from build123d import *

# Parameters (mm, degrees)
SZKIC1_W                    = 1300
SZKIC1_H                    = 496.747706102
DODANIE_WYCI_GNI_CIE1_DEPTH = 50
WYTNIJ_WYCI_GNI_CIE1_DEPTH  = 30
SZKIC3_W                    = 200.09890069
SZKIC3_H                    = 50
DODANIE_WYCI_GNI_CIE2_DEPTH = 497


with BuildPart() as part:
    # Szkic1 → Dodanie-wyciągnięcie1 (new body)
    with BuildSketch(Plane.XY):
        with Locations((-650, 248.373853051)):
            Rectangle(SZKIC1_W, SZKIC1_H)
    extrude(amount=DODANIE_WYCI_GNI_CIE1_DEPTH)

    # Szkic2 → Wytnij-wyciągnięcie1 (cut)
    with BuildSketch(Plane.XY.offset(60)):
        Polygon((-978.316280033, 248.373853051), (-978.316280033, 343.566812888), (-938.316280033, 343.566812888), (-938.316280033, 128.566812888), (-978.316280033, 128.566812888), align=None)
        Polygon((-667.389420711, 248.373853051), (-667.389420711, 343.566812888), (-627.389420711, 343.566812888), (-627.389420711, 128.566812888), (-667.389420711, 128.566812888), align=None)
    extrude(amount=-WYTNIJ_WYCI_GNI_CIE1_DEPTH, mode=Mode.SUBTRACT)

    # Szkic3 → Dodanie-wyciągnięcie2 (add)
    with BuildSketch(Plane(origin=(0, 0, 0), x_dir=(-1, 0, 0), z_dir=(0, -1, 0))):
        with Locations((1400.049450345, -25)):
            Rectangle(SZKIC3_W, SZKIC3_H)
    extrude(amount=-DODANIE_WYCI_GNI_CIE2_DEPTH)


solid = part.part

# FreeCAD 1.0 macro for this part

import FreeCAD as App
import Part
import Sketcher
from FreeCAD import Vector


def add_polygon(sketch, points):
    """Adds a closed chain of lines whose ends are joined by coincident constraints."""
    first, n = sketch.GeometryCount, len(points)
    for a, b in zip(points, points[1:] + points[:1]):
        sketch.addGeometry(Part.LineSegment(App.Vector(*a, 0), App.Vector(*b, 0)), False)
    for i in range(n):
        sketch.addConstraint(Sketcher.Constraint("Coincident", first + i, 2, first + (i + 1) % n, 1))

doc = App.newDocument("Part")
body = doc.addObject("PartDesign::Body", "Body")

# Sketch on XY plane
sketch1 = body.newObject("Sketcher::SketchObject", "Sketch")
sketch1.AttachmentSupport = (doc.getObject("XY_Plane"), [""])
sketch1.MapMode = "FlatFace"
add_polygon(sketch1, [(-1300, 497), (-1300, 0), (0, 0), (0, 497)])  # lines 0-3
sketch1.addConstraint(Sketcher.Constraint("Vertical", 0))
sketch1.addConstraint(Sketcher.Constraint("Horizontal", 1))
sketch1.addConstraint(Sketcher.Constraint("Vertical", 2))
sketch1.addConstraint(Sketcher.Constraint("Horizontal", 3))
sketch1.addConstraint(Sketcher.Constraint("Coincident", 1, 2, -1, 1))
sketch1.addConstraint(Sketcher.Constraint("DistanceX", 1, 1, 1, 2, 1300.0))
sketch1.addConstraint(Sketcher.Constraint("DistanceY", 0, 2, 0, 1, 496.747706))
pad1 = body.newObject("PartDesign::Pad", "Pad")
pad1.Profile = sketch1
pad1.Length = 50

# Sketch on XY plane
sketch2 = body.newObject("Sketcher::SketchObject", "Sketch001")
sketch2.AttachmentSupport = (doc.getObject("XY_Plane"), [""])
sketch2.MapMode = "FlatFace"
sketch2.AttachmentOffset = App.Placement(Vector(0, 0, 60), App.Rotation())
add_polygon(sketch2, [(-978, 344), (-978, 129), (-938, 129), (-938, 344)])  # lines 0-3
add_polygon(sketch2, [(-667, 344), (-667, 129), (-627, 129), (-627, 344)])  # lines 4-7
sketch2.addConstraint(Sketcher.Constraint("Vertical", 0))
sketch2.addConstraint(Sketcher.Constraint("Horizontal", 1))
sketch2.addConstraint(Sketcher.Constraint("Vertical", 2))
sketch2.addConstraint(Sketcher.Constraint("Horizontal", 3))
sketch2.addConstraint(Sketcher.Constraint("Vertical", 4))
sketch2.addConstraint(Sketcher.Constraint("Horizontal", 5))
sketch2.addConstraint(Sketcher.Constraint("Vertical", 6))
sketch2.addConstraint(Sketcher.Constraint("Horizontal", 7))
sketch2.addConstraint(Sketcher.Constraint("Horizontal", 1, 2, 4, 2))
sketch2.addConstraint(Sketcher.Constraint("Horizontal", 3, 2, 6, 2))
sketch2.addConstraint(Sketcher.Constraint("Equal", 3, 5))
sketch2.addConstraint(Sketcher.Constraint("DistanceX", 1, 1, 1, 2, 40.0))
sketch2.addConstraint(Sketcher.Constraint("DistanceY", 0, 2, 0, 1, 215.0))
sketch2.addConstraint(Sketcher.Constraint("DistanceX", 0, 2, -1, 1, 978.31628))
sketch2.addConstraint(Sketcher.Constraint("DistanceX", 4, 2, -1, 1, 667.389421))
sketch2.addConstraint(Sketcher.Constraint("DistanceY", -1, 1, 0, 2, 128.566813))
pocket1 = body.newObject("PartDesign::Pocket", "Pocket")
pocket1.Profile = sketch2
pocket1.Length = 30

# Sketch on XZ plane
sketch3 = body.newObject("Sketcher::SketchObject", "Sketch002")
sketch3.AttachmentSupport = (doc.getObject("XZ_Plane"), [""])
sketch3.MapMode = "FlatFace"
add_polygon(sketch3, [(-1300, 0), (-1300, 50), (-1500, 50), (-1500, 0)])  # lines 0-3
sketch3.addConstraint(Sketcher.Constraint("Vertical", 0))
sketch3.addConstraint(Sketcher.Constraint("Horizontal", 1))
sketch3.addConstraint(Sketcher.Constraint("Vertical", 2))
sketch3.addConstraint(Sketcher.Constraint("Horizontal", 3))
sketch3.addConstraint(Sketcher.Constraint("PointOnObject", 2, 2, -1))
sketch3.addConstraint(Sketcher.Constraint("DistanceY", 0, 1, 0, 2, 50.0))
sketch3.addConstraint(Sketcher.Constraint("DistanceX", 0, 2, -1, 1, 1300.0))
sketch3.addConstraint(Sketcher.Constraint("DistanceX", 1, 2, 1, 1, 200.098901))
pad2 = body.newObject("PartDesign::Pad", "Pad001")
pad2.Profile = sketch3
pad2.Length = 497
pad2.Reversed = True

doc.recompute()
